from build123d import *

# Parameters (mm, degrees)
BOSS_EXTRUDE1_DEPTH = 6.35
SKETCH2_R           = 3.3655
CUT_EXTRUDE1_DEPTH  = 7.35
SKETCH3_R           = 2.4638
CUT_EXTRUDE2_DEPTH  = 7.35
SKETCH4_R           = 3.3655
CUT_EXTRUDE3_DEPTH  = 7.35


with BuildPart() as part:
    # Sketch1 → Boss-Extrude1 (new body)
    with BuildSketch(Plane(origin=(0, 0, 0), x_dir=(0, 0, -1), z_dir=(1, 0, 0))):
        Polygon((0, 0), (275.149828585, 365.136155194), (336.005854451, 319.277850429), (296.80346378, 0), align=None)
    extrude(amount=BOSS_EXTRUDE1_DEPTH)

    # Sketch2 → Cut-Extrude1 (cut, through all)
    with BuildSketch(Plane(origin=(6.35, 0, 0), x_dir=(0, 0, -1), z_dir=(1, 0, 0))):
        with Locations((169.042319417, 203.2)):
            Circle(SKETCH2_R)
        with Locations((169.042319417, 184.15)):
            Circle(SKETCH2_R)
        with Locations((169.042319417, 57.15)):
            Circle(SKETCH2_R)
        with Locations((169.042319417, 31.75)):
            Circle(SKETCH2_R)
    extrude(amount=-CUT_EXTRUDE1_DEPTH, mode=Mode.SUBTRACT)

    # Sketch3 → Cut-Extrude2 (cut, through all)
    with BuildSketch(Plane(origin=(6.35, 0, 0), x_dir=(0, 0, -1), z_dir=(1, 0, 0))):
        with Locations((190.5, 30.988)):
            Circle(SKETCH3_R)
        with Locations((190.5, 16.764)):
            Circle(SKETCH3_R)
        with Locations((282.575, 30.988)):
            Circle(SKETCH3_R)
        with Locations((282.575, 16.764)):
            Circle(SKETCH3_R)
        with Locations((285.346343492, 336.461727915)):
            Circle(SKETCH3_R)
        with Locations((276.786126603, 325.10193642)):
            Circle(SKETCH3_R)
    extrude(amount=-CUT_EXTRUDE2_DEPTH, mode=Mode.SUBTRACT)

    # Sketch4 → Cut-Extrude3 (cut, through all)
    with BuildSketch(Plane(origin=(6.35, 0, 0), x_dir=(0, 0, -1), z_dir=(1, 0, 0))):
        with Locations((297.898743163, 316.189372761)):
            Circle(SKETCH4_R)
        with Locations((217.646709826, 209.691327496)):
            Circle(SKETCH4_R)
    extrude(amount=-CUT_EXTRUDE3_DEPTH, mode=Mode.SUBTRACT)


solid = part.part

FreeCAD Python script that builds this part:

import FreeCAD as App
import Part
import Sketcher

V = App.Vector
Q = App.Units.Quantity

doc = App.newDocument("Part")
body = doc.addObject("PartDesign::Body", "Body")

# Sketch on YZ plane
sketch1 = body.newObject("Sketcher::SketchObject", "Sketch")
sketch1.AttachmentSupport = (doc.getObject("YZ_Plane"), [""])
sketch1.MapMode = "FlatFace"
sketch1.addGeometry([
    Part.LineSegment(V(365, -275, 0), V(0, 0, 0)),
    Part.LineSegment(V(0, 0, 0), V(0, -297, 0)),
    Part.LineSegment(V(0, -297, 0), V(319, -336, 0)),
    Part.LineSegment(V(319, -336, 0), V(365, -275, 0)),
], False)
sketch1.addConstraint([
    Sketcher.Constraint("Coincident", 0, 2, 1, 1),
    Sketcher.Constraint("Coincident", 1, 2, 2, 1),
    Sketcher.Constraint("Coincident", 2, 2, 3, 1),
    Sketcher.Constraint("Coincident", 3, 2, 0, 1),
    Sketcher.Constraint("Vertical", 1),
    Sketcher.Constraint("Coincident", 0, 2, -1, 1),
    Sketcher.Constraint("Perpendicular", 0, 3),
    Sketcher.Constraint("Distance", 0, Q("18 in")),
    Sketcher.Constraint("Distance", 3, Q("3 in")),
    Sketcher.Constraint("Angle", 0, Q("143 deg")),
    Sketcher.Constraint("Angle", 2, Q("-7 deg")),
])
pad1 = body.newObject("PartDesign::Pad", "Pad")
pad1.Profile = sketch1
pad1.Length = Q("0.25 in")

# Sketch on YZ plane
sketch2 = body.newObject("Sketcher::SketchObject", "Sketch001")
sketch2.AttachmentSupport = (doc.getObject("YZ_Plane"), [""])
sketch2.MapMode = "FlatFace"
sketch2.AttachmentOffset = App.Placement(V(0, 0, 0.25 * 25.4), App.Rotation())
sketch2.addGeometry([
    Part.Circle(V(203.2, -169, 0), V(0, 0, 1), 3.4),
    Part.Circle(V(184.2, -169, 0), V(0, 0, 1), 3.4),
    Part.Circle(V(57.1, -169, 0), V(0, 0, 1), 3.4),
    Part.Circle(V(31.8, -169, 0), V(0, 0, 1), 3.4),
], False)
sketch2.addConstraint([
    Sketcher.Constraint("Equal", 0, 1),
    Sketcher.Constraint("Equal", 1, 2),
    Sketcher.Constraint("Equal", 2, 3),
    Sketcher.Constraint("Horizontal", 0, 3, 1, 3),
    Sketcher.Constraint("Horizontal", 1, 3, 2, 3),
    Sketcher.Constraint("Horizontal", 2, 3, 3, 3),
    Sketcher.Constraint("Diameter", 0, Q("0.265 in")),
    Sketcher.Constraint("DistanceX", -1, 1, 0, 3, Q("8 in")),
    Sketcher.Constraint("DistanceX", 2, 3, 1, 3, Q("5 in")),
    Sketcher.Constraint("DistanceX", 3, 3, 2, 3, Q("1 in")),
    Sketcher.Constraint("DistanceX", -1, 1, 1, 3, Q("7.25 in")),
    Sketcher.Constraint("DistanceY", 0, 3, -1, 1, Q("169.042319 mm")),
])
pocket1 = body.newObject("PartDesign::Pocket", "Pocket")
pocket1.Profile = sketch2
pocket1.Type = "ThroughAll"

# Sketch on YZ plane
sketch3 = body.newObject("Sketcher::SketchObject", "Sketch002")
sketch3.AttachmentSupport = (doc.getObject("YZ_Plane"), [""])
sketch3.MapMode = "FlatFace"
sketch3.AttachmentOffset = App.Placement(V(0, 0, 0.25 * 25.4), App.Rotation())
sketch3.addGeometry([
    Part.Circle(V(31, -190.5, 0), V(0, 0, 1), 2.5),  # 0
    Part.Circle(V(16.8, -190.5, 0), V(0, 0, 1), 2.5),  # 1
    Part.Circle(V(31, -282.6, 0), V(0, 0, 1), 2.5),  # 2
    Part.Circle(V(16.8, -282.6, 0), V(0, 0, 1), 2.5),  # 3
    Part.Circle(V(336.5, -285.3, 0), V(0, 0, 1), 2.5),  # 4
    Part.Circle(V(325.1, -276.8, 0), V(0, 0, 1), 2.5),  # 5
], False)
sketch3.addConstraint([
    Sketcher.Constraint("Equal", 0, 1),
    Sketcher.Constraint("Equal", 1, 2),
    Sketcher.Constraint("Equal", 2, 3),
    Sketcher.Constraint("Equal", 3, 4),
    Sketcher.Constraint("Equal", 4, 5),
    Sketcher.Constraint("Horizontal", 0, 3, 1, 3),
    Sketcher.Constraint("Horizontal", 2, 3, 3, 3),
    Sketcher.Constraint("Vertical", 0, 3, 2, 3),
    Sketcher.Constraint("Vertical", 1, 3, 3, 3),
    Sketcher.Constraint("Diameter", 0, Q("0.194 in")),
    Sketcher.Constraint("DistanceY", 0, 3, -1, 1, Q("7.5 in")),
    Sketcher.Constraint("DistanceX", -1, 1, 0, 3, Q("1.22 in")),
    Sketcher.Constraint("DistanceX", -1, 1, 1, 3, Q("0.66 in")),
    Sketcher.Constraint("DistanceY", 2, 3, -1, 1, Q("11.125 in")),
    Sketcher.Constraint("DistanceX", 5, 3, 4, 3, Q("11.359791 mm")),
    Sketcher.Constraint("DistanceX", -1, 1, 4, 3, Q("336.461728 mm")),
    Sketcher.Constraint("DistanceY", 4, 3, -1, 1, Q("285.346343 mm")),
    Sketcher.Constraint("DistanceY", 5, 3, -1, 1, Q("276.786127 mm")),
])
pocket2 = body.newObject("PartDesign::Pocket", "Pocket001")
pocket2.Profile = sketch3
pocket2.Type = "ThroughAll"

# Sketch on YZ plane
sketch4 = body.newObject("Sketcher::SketchObject", "Sketch003")
sketch4.AttachmentSupport = (doc.getObject("YZ_Plane"), [""])
sketch4.MapMode = "FlatFace"
sketch4.AttachmentOffset = App.Placement(V(0, 0, 0.25 * 25.4), App.Rotation())
sketch4.addGeometry([
    Part.Circle(V(316.2, -297.9, 0), V(0, 0, 1), 3.4),
    Part.Circle(V(209.7, -217.6, 0), V(0, 0, 1), 3.4),
], False)
sketch4.addConstraint([
    Sketcher.Constraint("Equal", 0, 1),
    Sketcher.Constraint("Diameter", 0, Q("0.265 in")),
    Sketcher.Constraint("DistanceY", 1, 3, -1, 1, Q("217.64671 mm")),
    Sketcher.Constraint("DistanceX", -1, 1, 0, 3, Q("316.189373 mm")),
    Sketcher.Constraint("DistanceY", 0, 3, -1, 1, Q("297.898743 mm")),
    Sketcher.Constraint("DistanceX", -1, 1, 1, 3, Q("209.691327 mm")),
])
pocket3 = body.newObject("PartDesign::Pocket", "Pocket002")
pocket3.Profile = sketch4
pocket3.Type = "ThroughAll"

doc.recompute()
